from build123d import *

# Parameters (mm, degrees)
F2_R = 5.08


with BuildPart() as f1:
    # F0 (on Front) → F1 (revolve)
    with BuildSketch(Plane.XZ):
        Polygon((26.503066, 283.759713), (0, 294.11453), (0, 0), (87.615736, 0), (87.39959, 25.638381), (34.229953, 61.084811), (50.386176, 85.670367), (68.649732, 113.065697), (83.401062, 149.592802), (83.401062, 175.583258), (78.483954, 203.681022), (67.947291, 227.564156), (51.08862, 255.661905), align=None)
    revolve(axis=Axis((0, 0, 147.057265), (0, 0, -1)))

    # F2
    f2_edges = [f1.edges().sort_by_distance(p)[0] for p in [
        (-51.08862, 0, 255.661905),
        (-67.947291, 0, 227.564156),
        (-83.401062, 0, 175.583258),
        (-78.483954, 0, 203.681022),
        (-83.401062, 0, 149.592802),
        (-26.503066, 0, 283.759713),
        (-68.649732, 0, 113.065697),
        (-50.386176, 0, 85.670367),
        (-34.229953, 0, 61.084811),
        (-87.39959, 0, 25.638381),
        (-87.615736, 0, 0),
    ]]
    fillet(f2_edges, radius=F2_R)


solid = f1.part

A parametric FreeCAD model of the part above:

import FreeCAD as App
import Part
import Sketcher
from FreeCAD import Vector
Q = App.Units.Quantity


def edges_at(feature, points):
    """Names of the edges that pass closest to the given points."""
    edges = feature.Shape.Edges
    near = lambda p: min(range(len(edges)), key=lambda i: edges[i].distToShape(Part.Vertex(*p))[0])
    return sorted({f"Edge{near(p) + 1}" for p in points})


def add_polygon(sketch, points):
    """Adds a closed chain of lines whose ends are joined by coincident constraints."""
    first, n = sketch.GeometryCount, len(points)
    for a, b in zip(points, points[1:] + points[:1]):
        sketch.addGeometry(Part.LineSegment(App.Vector(*a, 0), App.Vector(*b, 0)), False)
    for i in range(n):
        sketch.addConstraint(Sketcher.Constraint("Coincident", first + i, 2, first + (i + 1) % n, 1))

doc = App.newDocument("Part")
body = doc.addObject("PartDesign::Body", "Body")

sketch1 = body.newObject("Sketcher::SketchObject", "Sketch")
sketch1.AttachmentSupport = (doc.getObject("XZ_Plane"), [""])
sketch1.MapMode = "FlatFace"
add_polygon(sketch1, [(27, 284), (0, 294), (0, 0), (88, 0), (87, 26), (34, 61), (50, 86), (69, 113), (83, 150), (83, 176), (78, 204), (68, 228), (51, 256)])
sketch1.addConstraint([
    Sketcher.Constraint("Vertical", 1),
    Sketcher.Constraint("Horizontal", 2),
    Sketcher.Constraint("Vertical", 8),
    Sketcher.Constraint("Coincident", 1, 2, -1, 1),
    Sketcher.Constraint("Perpendicular", 4, 6),
    Sketcher.Constraint("Distance", 12, Q("1.4698998 in")),
    Sketcher.Constraint("DistanceY", 1, 2, 1, 1, 294.11453),
    Sketcher.Constraint("DistanceY", -1, 1, 7, 2, 149.592802),
    Sketcher.Constraint("Distance", 0, 28.454081),
    Sketcher.Constraint("Distance", 6, 32.92509),
    Sketcher.Constraint("DistanceX", 2, 1, 2, 2, 87.615736),
    Sketcher.Constraint("DistanceY", 8, 1, 8, 2, 25.990456),
    Sketcher.Constraint("DistanceX", -1, 1, 3, 2, 87.39959),
    Sketcher.Constraint("DistanceY", -1, 1, 3, 2, 25.638381),
    Sketcher.Constraint("DistanceY", -1, 1, 4, 2, 61.084811),
    Sketcher.Constraint("DistanceX", -1, 1, 6, 2, 68.649732),
    Sketcher.Constraint("DistanceX", -1, 1, 7, 2, 83.401062),
    Sketcher.Constraint("DistanceX", -1, 1, 10, 2, 67.947291),
    Sketcher.Constraint("DistanceX", -1, 1, 11, 2, 51.08862),
    Sketcher.Constraint("DistanceX", 5, 2, 2, 2, 37.22956),
    Sketcher.Constraint("DistanceY", 6, 2, 8, 2, 62.517561),
    Sketcher.Constraint("DistanceY", 7, 2, 9, 2, 54.08822),
    Sketcher.Constraint("DistanceX", 6, 2, 9, 2, 9.834222),
    Sketcher.Constraint("DistanceY", 6, 2, 10, 2, 114.498459),
    Sketcher.Constraint("DistanceY", 10, 2, 11, 2, 28.097749),
])
revolution = body.newObject("PartDesign::Revolution", "Revolution")
revolution.Profile = sketch1
revolution.ReferenceAxis = (sketch1, ["V_Axis"])
revolution.Angle = 360
doc.recompute()

fillet = body.newObject("PartDesign::Fillet", "Fillet")
fillet.Base = (revolution, edges_at(revolution, [
    (-51.089, 0, 255.662),
    (-67.947, 0, 227.564),
    (-83.401, 0, 175.583),
    (-78.484, 0, 203.681),
    (-83.401, 0, 149.593),
    (-26.503, 0, 283.76),
    (-68.65, 0, 113.066),
    (-50.386, 0, 85.67),
    (-34.23, 0, 61.085),
    (-87.4, 0, 25.638),
    (-87.616, 0, 0),
]))
fillet.Radius = Q("0.2 in")

doc.recompute()
